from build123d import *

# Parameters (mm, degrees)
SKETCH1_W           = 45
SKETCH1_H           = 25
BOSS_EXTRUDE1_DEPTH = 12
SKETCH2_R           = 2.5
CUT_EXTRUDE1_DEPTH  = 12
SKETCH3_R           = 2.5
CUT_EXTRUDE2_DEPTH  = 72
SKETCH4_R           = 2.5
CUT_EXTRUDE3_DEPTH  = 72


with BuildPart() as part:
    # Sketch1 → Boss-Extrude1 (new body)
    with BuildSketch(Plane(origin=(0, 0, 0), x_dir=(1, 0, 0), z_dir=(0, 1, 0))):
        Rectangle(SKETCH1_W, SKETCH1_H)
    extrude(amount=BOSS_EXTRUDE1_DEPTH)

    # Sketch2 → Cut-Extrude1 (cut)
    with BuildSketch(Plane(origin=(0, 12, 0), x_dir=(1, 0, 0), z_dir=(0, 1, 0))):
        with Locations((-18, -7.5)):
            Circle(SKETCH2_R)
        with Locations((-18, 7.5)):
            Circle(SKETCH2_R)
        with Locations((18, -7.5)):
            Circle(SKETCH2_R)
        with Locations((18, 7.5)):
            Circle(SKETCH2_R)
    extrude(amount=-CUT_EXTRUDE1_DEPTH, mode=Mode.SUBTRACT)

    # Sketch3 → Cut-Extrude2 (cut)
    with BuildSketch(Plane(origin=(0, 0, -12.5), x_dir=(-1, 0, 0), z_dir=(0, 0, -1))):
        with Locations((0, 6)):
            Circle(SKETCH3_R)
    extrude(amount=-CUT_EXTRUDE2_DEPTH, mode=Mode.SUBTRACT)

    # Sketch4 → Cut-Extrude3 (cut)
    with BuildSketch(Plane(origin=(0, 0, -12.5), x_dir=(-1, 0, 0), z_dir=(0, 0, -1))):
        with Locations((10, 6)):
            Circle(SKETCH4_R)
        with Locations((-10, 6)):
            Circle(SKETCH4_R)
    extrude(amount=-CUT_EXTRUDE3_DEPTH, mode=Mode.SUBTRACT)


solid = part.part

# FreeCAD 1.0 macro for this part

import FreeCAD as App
import Part
import Sketcher
Q = App.Units.Quantity

doc = App.newDocument("Part")
body = doc.addObject("PartDesign::Body", "Body")

# Sketch on XZ plane
sketch1 = body.newObject("Sketcher::SketchObject", "Sketch")
sketch1.AttachmentSupport = (doc.getObject("XZ_Plane"), [""])
sketch1.MapMode = "FlatFace"
sketch1.addGeometry([
    Part.LineSegment(App.Vector(-22, -12, 0), App.Vector(-22, 12, 0)),
    Part.LineSegment(App.Vector(-22, 12, 0), App.Vector(22, 12, 0)),
    Part.LineSegment(App.Vector(22, 12, 0), App.Vector(22, -12, 0)),
    Part.LineSegment(App.Vector(22, -12, 0), App.Vector(-22, -12, 0)),
], False)
sketch1.addConstraint([
    Sketcher.Constraint("Coincident", 0, 2, 1, 1),
    Sketcher.Constraint("Coincident", 1, 2, 2, 1),
    Sketcher.Constraint("Coincident", 2, 2, 3, 1),
    Sketcher.Constraint("Coincident", 3, 2, 0, 1),
    Sketcher.Constraint("Vertical", 0),
    Sketcher.Constraint("Horizontal", 1),
    Sketcher.Constraint("Vertical", 2),
    Sketcher.Constraint("Horizontal", 3),
    Sketcher.Constraint("Symmetric", 0, 2, 2, 2, -1, 1),
    Sketcher.Constraint("DistanceX", 1, 1, 1, 2, Q("45 mm")),
    Sketcher.Constraint("DistanceY", 0, 1, 0, 2, Q("25 mm")),
])
pad1 = body.newObject("PartDesign::Pad", "Pad")
pad1.Profile = sketch1
pad1.Length = 12
pad1.Reversed = True

# Sketch on XZ plane
sketch2 = body.newObject("Sketcher::SketchObject", "Sketch001")
sketch2.AttachmentSupport = (doc.getObject("XZ_Plane"), [""])
sketch2.MapMode = "FlatFace"
sketch2.AttachmentOffset = App.Placement(App.Vector(0, 0, -12), App.Rotation())
sketch2.addGeometry([
    Part.Circle(App.Vector(-18, 7.5, 0), App.Vector(0, 0, 1), 2.5),
    Part.Circle(App.Vector(-18, -7.5, 0), App.Vector(0, 0, 1), 2.5),
    Part.Circle(App.Vector(18, 7.5, 0), App.Vector(0, 0, 1), 2.5),
    Part.Circle(App.Vector(18, -7.5, 0), App.Vector(0, 0, 1), 2.5),
], False)
sketch2.addConstraint([
    Sketcher.Constraint("Equal", 0, 1),
    Sketcher.Constraint("Equal", 1, 2),
    Sketcher.Constraint("Equal", 2, 3),
    Sketcher.Constraint("Symmetric", 1, 3, 2, 3, -1, 1),
    Sketcher.Constraint("Symmetric", 0, 3, 3, 3, -1, 1),
    Sketcher.Constraint("Symmetric", 0, 3, 2, 3, -2),
    Sketcher.Constraint("Diameter", 0, Q("5 mm")),
    Sketcher.Constraint("DistanceX", 0, 3, -1, 1, Q("18 mm")),
    Sketcher.Constraint("DistanceY", 1, 3, 0, 3, Q("15 mm")),
])
pocket1 = body.newObject("PartDesign::Pocket", "Pocket")
pocket1.Profile = sketch2
pocket1.Length = 12
pocket1.Reversed = True

# Sketch on XY plane
sketch3 = body.newObject("Sketcher::SketchObject", "Sketch002")
sketch3.AttachmentSupport = (doc.getObject("XY_Plane"), [""])
sketch3.MapMode = "FlatFace"
sketch3.AttachmentOffset = App.Placement(App.Vector(0, 0, -12.5), App.Rotation())
sketch3.addGeometry(Part.Circle(App.Vector(0, 6, 0), App.Vector(0, 0, 1), 2.5), False)
sketch3.addConstraint([
    Sketcher.Constraint("PointOnObject", 0, 3, -2),
    Sketcher.Constraint("Diameter", 0, Q("5 mm")),
    Sketcher.Constraint("DistanceY", -1, 1, 0, 3, Q("6 mm")),
])
pocket2 = body.newObject("PartDesign::Pocket", "Pocket001")
pocket2.Profile = sketch3
pocket2.Length = 72
pocket2.Reversed = True

# Sketch on XY plane
sketch4 = body.newObject("Sketcher::SketchObject", "Sketch003")
sketch4.AttachmentSupport = (doc.getObject("XY_Plane"), [""])
sketch4.MapMode = "FlatFace"
sketch4.AttachmentOffset = App.Placement(App.Vector(0, 0, -12.5), App.Rotation())
sketch4.addGeometry([
    Part.Circle(App.Vector(-10, 6, 0), App.Vector(0, 0, 1), 2.5),
    Part.Circle(App.Vector(10, 6, 0), App.Vector(0, 0, 1), 2.5),
], False)
sketch4.addConstraint([
    Sketcher.Constraint("Equal", 0, 1),
    Sketcher.Constraint("Symmetric", 0, 3, 1, 3, -2),
    Sketcher.Constraint("Diameter", 0, Q("5 mm")),
    Sketcher.Constraint("DistanceX", 0, 3, -1, 1, Q("10 mm")),
    Sketcher.Constraint("DistanceY", -1, 1, 0, 3, Q("6 mm")),
])
pocket3 = body.newObject("PartDesign::Pocket", "Pocket002")
pocket3.Profile = sketch4
pocket3.Length = 72
pocket3.Reversed = True

doc.recompute()
